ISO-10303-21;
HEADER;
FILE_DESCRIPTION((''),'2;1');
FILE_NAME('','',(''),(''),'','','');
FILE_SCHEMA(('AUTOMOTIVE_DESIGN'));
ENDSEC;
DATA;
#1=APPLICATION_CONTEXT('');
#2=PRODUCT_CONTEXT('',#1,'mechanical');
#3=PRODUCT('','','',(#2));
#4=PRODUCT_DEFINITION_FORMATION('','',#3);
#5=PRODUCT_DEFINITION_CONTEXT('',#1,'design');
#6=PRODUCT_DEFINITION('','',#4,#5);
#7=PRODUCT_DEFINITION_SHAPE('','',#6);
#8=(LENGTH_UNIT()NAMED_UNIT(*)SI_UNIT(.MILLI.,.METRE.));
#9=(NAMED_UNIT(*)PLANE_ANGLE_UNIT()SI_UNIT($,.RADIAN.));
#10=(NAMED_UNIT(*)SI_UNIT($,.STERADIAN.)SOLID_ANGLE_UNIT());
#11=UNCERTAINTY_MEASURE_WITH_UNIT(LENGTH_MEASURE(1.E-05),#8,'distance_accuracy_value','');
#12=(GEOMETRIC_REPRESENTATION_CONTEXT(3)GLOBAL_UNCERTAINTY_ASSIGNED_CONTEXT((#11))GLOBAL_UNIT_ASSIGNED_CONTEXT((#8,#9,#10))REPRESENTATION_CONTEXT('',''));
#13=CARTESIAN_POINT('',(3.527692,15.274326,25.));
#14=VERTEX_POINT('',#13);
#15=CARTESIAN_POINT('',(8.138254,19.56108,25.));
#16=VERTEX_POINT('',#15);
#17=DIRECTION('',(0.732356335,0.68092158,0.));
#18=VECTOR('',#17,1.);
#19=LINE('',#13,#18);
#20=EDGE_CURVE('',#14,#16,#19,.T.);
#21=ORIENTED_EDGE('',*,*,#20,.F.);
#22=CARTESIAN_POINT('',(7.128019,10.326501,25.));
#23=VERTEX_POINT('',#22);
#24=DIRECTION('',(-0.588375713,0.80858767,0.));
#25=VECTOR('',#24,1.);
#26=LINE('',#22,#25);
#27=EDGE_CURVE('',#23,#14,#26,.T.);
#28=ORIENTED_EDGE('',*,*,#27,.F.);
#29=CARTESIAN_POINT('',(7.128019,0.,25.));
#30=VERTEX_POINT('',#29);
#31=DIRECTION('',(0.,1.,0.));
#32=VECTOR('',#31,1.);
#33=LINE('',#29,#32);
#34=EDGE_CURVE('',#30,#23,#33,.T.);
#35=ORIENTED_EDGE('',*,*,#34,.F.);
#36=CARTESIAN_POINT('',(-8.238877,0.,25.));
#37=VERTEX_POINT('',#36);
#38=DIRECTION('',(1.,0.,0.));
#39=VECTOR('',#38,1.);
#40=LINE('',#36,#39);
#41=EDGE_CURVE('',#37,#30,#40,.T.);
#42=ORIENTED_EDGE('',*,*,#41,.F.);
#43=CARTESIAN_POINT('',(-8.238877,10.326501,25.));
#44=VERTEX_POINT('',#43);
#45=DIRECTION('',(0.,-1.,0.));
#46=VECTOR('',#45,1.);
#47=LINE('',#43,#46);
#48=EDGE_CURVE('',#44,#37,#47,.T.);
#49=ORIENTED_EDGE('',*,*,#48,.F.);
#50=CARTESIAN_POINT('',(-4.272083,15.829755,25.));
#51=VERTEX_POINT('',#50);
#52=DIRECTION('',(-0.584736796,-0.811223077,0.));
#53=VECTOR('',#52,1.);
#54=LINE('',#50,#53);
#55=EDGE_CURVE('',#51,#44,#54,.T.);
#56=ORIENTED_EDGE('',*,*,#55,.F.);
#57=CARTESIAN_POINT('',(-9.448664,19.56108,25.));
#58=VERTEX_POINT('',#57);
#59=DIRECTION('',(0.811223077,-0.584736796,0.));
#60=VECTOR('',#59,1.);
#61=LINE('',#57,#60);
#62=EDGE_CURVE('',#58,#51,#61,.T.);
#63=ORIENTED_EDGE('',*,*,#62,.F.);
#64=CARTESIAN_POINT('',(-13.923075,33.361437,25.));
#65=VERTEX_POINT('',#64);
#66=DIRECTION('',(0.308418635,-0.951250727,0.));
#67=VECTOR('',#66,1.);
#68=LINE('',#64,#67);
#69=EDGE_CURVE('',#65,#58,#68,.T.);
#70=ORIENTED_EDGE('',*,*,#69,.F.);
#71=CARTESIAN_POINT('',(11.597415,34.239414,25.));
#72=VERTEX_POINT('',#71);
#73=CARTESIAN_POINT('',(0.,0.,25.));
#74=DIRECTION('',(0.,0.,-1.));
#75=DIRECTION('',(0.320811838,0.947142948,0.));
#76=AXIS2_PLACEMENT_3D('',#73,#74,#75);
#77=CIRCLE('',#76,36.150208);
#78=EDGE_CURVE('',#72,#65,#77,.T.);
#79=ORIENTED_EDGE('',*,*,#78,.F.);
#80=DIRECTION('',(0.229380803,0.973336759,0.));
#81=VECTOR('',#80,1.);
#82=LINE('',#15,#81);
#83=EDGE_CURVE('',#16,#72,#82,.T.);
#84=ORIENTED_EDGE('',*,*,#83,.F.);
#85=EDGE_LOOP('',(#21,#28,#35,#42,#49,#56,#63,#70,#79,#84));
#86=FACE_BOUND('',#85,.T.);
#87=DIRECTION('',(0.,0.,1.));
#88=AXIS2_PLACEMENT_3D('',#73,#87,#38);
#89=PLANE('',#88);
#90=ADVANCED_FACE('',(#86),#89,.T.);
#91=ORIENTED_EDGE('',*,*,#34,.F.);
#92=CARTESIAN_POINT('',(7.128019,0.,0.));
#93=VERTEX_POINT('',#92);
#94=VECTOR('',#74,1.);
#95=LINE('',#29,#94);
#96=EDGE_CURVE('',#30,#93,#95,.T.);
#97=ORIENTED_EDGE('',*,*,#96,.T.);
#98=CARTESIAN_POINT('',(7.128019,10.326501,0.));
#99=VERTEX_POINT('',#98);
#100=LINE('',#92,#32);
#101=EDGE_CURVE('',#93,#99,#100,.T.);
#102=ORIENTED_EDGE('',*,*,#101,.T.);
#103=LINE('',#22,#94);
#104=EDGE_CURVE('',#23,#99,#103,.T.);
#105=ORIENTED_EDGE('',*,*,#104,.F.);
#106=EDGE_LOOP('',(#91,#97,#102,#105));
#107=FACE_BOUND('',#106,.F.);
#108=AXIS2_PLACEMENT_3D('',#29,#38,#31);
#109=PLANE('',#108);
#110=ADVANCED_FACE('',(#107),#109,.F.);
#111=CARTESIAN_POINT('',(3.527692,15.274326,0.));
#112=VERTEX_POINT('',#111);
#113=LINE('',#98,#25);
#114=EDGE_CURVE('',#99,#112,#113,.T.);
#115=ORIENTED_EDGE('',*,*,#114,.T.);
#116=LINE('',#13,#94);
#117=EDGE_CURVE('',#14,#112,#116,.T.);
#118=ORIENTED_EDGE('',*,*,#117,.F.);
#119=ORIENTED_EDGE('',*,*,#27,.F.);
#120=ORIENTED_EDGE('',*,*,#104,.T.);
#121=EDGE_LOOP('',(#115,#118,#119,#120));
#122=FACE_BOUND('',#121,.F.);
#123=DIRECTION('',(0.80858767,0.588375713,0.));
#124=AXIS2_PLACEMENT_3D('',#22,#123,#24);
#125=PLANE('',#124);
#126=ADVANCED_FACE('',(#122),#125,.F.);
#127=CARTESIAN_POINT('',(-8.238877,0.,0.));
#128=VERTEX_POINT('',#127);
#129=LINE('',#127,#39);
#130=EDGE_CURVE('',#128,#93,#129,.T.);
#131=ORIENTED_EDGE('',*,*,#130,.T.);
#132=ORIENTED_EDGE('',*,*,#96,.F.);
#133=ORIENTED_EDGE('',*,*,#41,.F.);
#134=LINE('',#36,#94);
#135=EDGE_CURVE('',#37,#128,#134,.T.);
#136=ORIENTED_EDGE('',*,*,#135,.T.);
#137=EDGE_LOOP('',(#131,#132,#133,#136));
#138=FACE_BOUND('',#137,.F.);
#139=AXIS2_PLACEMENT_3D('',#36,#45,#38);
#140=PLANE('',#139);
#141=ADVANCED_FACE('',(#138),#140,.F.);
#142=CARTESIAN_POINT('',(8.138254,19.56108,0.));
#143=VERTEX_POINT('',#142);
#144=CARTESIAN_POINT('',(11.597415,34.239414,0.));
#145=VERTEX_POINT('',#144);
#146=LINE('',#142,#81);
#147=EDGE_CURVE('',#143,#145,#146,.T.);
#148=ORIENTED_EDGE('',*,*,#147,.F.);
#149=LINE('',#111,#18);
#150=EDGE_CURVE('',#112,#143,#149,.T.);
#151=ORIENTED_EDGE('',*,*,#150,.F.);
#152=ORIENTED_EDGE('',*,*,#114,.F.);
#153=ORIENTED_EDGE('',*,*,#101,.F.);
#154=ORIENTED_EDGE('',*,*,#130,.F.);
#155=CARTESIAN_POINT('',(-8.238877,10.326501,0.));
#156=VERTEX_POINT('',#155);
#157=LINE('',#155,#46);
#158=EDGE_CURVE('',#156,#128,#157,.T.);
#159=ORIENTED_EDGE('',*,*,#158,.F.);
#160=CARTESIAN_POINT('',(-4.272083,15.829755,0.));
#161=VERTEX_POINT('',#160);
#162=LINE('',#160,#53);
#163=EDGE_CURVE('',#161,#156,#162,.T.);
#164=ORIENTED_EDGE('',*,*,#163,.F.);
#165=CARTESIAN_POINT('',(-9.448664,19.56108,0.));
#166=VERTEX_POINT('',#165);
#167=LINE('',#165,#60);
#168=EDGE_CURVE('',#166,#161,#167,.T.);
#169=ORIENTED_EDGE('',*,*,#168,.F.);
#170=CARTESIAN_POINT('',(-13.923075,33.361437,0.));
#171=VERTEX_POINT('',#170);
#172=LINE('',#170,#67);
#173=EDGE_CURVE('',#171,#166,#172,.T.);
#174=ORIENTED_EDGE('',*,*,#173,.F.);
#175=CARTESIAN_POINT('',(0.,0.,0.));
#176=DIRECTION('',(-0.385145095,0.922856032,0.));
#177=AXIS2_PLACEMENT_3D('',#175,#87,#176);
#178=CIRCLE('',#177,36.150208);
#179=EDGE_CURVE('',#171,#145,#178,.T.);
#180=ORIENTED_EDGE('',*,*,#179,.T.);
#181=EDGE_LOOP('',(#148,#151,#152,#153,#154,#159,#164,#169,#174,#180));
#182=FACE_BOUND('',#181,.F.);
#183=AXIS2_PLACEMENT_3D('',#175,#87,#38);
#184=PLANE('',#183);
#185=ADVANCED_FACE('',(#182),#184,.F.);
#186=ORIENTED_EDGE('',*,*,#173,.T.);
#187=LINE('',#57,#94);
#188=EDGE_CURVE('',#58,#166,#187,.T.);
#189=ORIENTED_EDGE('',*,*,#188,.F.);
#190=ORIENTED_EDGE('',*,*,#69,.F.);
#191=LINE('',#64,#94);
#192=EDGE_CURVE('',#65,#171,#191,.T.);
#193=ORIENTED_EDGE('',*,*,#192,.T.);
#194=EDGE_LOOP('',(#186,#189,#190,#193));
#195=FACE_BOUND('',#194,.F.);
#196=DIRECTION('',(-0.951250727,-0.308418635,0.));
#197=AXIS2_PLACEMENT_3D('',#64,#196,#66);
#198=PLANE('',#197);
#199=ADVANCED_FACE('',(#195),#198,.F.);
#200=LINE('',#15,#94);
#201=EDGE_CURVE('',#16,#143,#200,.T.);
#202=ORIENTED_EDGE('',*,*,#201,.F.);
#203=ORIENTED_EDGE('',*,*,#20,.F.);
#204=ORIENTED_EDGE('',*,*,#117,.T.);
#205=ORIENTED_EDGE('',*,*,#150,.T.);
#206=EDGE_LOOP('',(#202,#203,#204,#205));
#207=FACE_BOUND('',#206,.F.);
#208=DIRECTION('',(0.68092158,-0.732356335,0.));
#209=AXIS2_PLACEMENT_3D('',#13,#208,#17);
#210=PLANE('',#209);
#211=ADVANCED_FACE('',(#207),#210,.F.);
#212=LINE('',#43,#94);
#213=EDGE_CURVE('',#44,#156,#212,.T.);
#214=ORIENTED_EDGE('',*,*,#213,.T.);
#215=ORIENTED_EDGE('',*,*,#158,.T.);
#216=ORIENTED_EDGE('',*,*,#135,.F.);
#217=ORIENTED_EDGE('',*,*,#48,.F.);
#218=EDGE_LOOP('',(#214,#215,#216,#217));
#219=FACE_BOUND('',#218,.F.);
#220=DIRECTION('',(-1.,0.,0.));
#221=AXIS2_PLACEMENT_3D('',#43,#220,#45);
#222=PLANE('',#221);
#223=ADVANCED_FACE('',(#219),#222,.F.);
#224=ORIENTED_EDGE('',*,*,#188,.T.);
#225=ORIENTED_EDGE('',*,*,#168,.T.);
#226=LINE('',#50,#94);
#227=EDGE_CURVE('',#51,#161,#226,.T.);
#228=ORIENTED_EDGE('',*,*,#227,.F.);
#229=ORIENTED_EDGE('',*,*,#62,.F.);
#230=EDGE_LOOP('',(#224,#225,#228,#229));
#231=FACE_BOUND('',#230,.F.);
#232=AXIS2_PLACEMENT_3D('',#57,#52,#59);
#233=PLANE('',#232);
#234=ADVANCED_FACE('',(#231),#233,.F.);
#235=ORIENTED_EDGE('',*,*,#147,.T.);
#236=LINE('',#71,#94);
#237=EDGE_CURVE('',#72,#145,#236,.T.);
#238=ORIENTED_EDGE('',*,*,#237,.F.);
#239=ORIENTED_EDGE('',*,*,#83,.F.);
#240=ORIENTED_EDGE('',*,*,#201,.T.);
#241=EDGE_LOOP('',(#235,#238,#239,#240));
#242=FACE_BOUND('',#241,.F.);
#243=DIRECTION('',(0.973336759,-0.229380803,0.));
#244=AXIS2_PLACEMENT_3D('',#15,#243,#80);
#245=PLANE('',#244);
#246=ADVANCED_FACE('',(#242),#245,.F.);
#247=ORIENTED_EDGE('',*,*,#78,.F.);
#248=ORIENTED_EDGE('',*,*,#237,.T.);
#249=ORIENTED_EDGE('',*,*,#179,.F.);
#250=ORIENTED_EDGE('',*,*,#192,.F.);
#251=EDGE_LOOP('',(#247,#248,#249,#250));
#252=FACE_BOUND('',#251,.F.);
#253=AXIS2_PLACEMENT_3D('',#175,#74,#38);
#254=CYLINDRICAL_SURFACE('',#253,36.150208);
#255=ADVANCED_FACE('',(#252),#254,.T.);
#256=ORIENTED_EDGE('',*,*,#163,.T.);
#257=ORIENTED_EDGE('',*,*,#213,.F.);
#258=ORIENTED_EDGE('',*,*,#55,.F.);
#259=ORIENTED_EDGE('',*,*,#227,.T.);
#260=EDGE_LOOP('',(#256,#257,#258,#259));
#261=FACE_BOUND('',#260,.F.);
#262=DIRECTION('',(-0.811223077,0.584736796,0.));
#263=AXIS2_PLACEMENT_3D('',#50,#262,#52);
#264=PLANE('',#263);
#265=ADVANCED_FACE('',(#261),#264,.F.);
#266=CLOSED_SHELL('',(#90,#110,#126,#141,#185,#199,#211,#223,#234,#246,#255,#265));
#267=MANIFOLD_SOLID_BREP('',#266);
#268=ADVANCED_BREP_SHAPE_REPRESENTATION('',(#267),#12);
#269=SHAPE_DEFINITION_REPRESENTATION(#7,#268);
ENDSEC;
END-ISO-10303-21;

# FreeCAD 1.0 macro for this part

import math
import FreeCAD as App
import Part
import Sketcher
Q = App.Units.Quantity

doc = App.newDocument("Part")
body = doc.addObject("PartDesign::Body", "Body")

# Sketch on XY plane
sketch1 = body.newObject("Sketcher::SketchObject", "Sketch")
sketch1.AttachmentSupport = (doc.getObject("XY_Plane"), [""])
sketch1.MapMode = "FlatFace"
sketch1.addGeometry(Part.Circle(App.Vector(0, 0, 0), App.Vector(0, 0, 1), 36), False)
sketch1.addConstraint([
    Sketcher.Constraint("Coincident", 0, 3, -1, 1),
    Sketcher.Constraint("Diameter", 0, Q("72.300415 mm")),
])
pad1 = body.newObject("PartDesign::Pad", "Pad")
pad1.Profile = sketch1
pad1.Length = 25

# Sketch on XY plane
sketch2 = body.newObject("Sketcher::SketchObject", "Sketch001")
sketch2.AttachmentSupport = (doc.getObject("XY_Plane"), [""])
sketch2.MapMode = "FlatFace"
sketch2.AttachmentOffset = App.Placement(App.Vector(0, 0, 25), App.Rotation())
sketch2.addGeometry([
    Part.LineSegment(App.Vector(-8, 0, 0), App.Vector(7, 0, 0)),  # 0
    Part.LineSegment(App.Vector(7, 0, 0), App.Vector(7, 10, 0)),  # 1
    Part.LineSegment(App.Vector(7, 10, 0), App.Vector(4, 15, 0)),  # 2
    Part.LineSegment(App.Vector(4, 15, 0), App.Vector(8, 20, 0)),  # 3
    Part.LineSegment(App.Vector(8, 20, 0), App.Vector(12, 34, 0)),  # 4
    Part.ArcOfCircle(Part.Circle(App.Vector(0, 0, 0), App.Vector(0, 0, 1), 36), math.radians(71.29), math.radians(90)),  # 5
    Part.ArcOfCircle(Part.Circle(App.Vector(0, 0, 0), App.Vector(0, 0, 1), 36), math.radians(90), math.radians(113)),  # 6
    Part.LineSegment(App.Vector(-14, 33, 0), App.Vector(-9, 20, 0)),  # 7
    Part.LineSegment(App.Vector(-9, 20, 0), App.Vector(-4, 16, 0)),  # 8
    Part.LineSegment(App.Vector(-4, 16, 0), App.Vector(-8, 10, 0)),  # 9
    Part.LineSegment(App.Vector(-8, 10, 0), App.Vector(-8, 0, 0)),  # 10
], False)
sketch2.addConstraint([
    Sketcher.Constraint("Coincident", 0, 2, 1, 1),
    Sketcher.Constraint("Coincident", 1, 2, 2, 1),
    Sketcher.Constraint("Coincident", 2, 2, 3, 1),
    Sketcher.Constraint("Coincident", 3, 2, 4, 1),
    Sketcher.Constraint("Coincident", 4, 2, 5, 1),
    Sketcher.Constraint("Tangent", 5, 2, 6, 1),
    Sketcher.Constraint("Coincident", 6, 2, 7, 1),
    Sketcher.Constraint("Coincident", 7, 2, 8, 1),
    Sketcher.Constraint("Coincident", 8, 2, 9, 1),
    Sketcher.Constraint("Coincident", 9, 2, 10, 1),
    Sketcher.Constraint("Coincident", 10, 2, 0, 1),
    Sketcher.Constraint("Horizontal", 0),
    Sketcher.Constraint("Vertical", 1),
    Sketcher.Constraint("Vertical", 10),
    Sketcher.Constraint("Coincident", 5, 3, -1, 1),
    Sketcher.Constraint("Equal", 5, 6),
    Sketcher.Constraint("PointOnObject", 0, 2, -1),
    Sketcher.Constraint("PointOnObject", 5, 2, -2),
    Sketcher.Constraint("Perpendicular", 8, 9),
    Sketcher.Constraint("Horizontal", 3, 2, 7, 2),
    Sketcher.Constraint("Horizontal", 1, 2, 9, 2),
    Sketcher.Constraint("DistanceY", 1, 1, 1, 2, Q("10.326501 mm")),
    Sketcher.Constraint("Radius", 5, Q("36.150208 mm")),
    Sketcher.Constraint("DistanceX", 8, 2, 1, 2, Q("11.400102 mm")),
    Sketcher.Constraint("Distance", 3, Q("6.295518 mm")),
    Sketcher.Constraint("Distance", 7, Q("14.507591 mm")),
    Sketcher.Constraint("DistanceX", 0, 1, 0, 2, Q("15.366896 mm")),
    Sketcher.Constraint("DistanceX", -1, 1, 0, 2, Q("7.128019 mm")),
    Sketcher.Constraint("DistanceX", -1, 1, 2, 2, Q("3.527692 mm")),
    Sketcher.Constraint("DistanceY", -1, 1, 3, 2, Q("19.56108 mm")),
    Sketcher.Constraint("DistanceX", 3, 2, 4, 2, Q("3.45916 mm")),
    Sketcher.Constraint("DistanceY", 2, 2, 5, 2, Q("20.875881 mm")),
    Sketcher.Constraint("DistanceY", 6, 2, 5, 2, Q("2.78877 mm")),
])
pocket1 = body.newObject("PartDesign::Pocket", "Pocket")
pocket1.Profile = sketch2
pocket1.Length = 25

doc.recompute()
